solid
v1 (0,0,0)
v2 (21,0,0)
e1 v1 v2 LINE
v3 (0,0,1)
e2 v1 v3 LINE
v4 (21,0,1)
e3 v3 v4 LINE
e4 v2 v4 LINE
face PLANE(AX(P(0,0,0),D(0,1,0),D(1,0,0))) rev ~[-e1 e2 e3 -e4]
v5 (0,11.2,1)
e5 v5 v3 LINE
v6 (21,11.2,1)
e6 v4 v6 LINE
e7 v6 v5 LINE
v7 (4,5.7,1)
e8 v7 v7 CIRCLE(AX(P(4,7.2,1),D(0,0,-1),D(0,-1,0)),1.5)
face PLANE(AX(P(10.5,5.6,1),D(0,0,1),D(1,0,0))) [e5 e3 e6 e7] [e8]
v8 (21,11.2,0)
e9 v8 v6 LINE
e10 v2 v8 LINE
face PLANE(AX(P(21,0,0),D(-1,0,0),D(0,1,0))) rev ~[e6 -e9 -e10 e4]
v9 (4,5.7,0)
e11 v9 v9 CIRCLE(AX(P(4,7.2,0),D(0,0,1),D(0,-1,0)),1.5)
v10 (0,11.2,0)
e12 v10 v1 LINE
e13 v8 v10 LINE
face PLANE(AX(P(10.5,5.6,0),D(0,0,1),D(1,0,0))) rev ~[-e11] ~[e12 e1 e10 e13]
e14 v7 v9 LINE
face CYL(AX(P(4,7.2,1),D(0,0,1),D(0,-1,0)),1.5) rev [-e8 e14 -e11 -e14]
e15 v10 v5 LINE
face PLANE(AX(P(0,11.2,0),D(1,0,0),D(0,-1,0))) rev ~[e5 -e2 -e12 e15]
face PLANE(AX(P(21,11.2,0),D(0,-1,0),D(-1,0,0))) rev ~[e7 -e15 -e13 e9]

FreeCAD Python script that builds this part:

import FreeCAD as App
import Part
import Sketcher

V = App.Vector
Q = App.Units.Quantity


def add_polygon(sketch, points):
    """Adds a closed chain of lines whose ends are joined by coincident constraints."""
    first, n = sketch.GeometryCount, len(points)
    for a, b in zip(points, points[1:] + points[:1]):
        sketch.addGeometry(Part.LineSegment(App.Vector(*a, 0), App.Vector(*b, 0)), False)
    for i in range(n):
        sketch.addConstraint(Sketcher.Constraint("Coincident", first + i, 2, first + (i + 1) % n, 1))

doc = App.newDocument("Part")
body = doc.addObject("PartDesign::Body", "Body")

# Sketch on XY plane
sketch1 = doc.addObject("Sketcher::SketchObject", "Sketch")
body.addObject(sketch1)
sketch1.AttachmentSupport = (doc.XY_Plane, [""])
sketch1.MapMode = "FlatFace"
add_polygon(sketch1, [(21, 0), (21, 11), (0, 11), (0, 0)])  # lines 0-3
sketch1.addConstraint([
    Sketcher.Constraint("Vertical", 0),
    Sketcher.Constraint("Horizontal", 1),
    Sketcher.Constraint("Vertical", 2),
    Sketcher.Constraint("Horizontal", 3),
    Sketcher.Constraint("Coincident", 2, 2, -1, 1),
    Sketcher.Constraint("DistanceX", 1, 2, 1, 1, Q("21 mm")),
    Sketcher.Constraint("DistanceY", 0, 1, 0, 2, Q("11.2 mm")),
])
pad1 = doc.addObject("PartDesign::Pad", "Pad")
body.addObject(pad1)
pad1.Profile = sketch1
pad1.Length = 1

# Sketch on XY plane
sketch2 = doc.addObject("Sketcher::SketchObject", "Sketch001")
body.addObject(sketch2)
sketch2.AttachmentSupport = (doc.XY_Plane, [""])
sketch2.MapMode = "FlatFace"
sketch2.AttachmentOffset = App.Placement(V(0, 0, 1), App.Rotation())
sketch2.addGeometry(Part.Circle(V(4, 7.2, 0), V(0, 0, 1), 1.5), False)
sketch2.addConstraint([
    Sketcher.Constraint("Diameter", 0, Q("3 mm")),
    Sketcher.Constraint("DistanceX", -1, 1, 0, 3, Q("4 mm")),
    Sketcher.Constraint("DistanceY", -1, 1, 0, 3, Q("7.2 mm")),
])
doc.recompute()
hole = doc.addObject("PartDesign::Hole", "Hole")
body.addObject(hole)
hole.Profile = sketch2
hole.ThreadType = "None"
hole.Diameter = 3
hole.DepthType = "ThroughAll"

doc.recompute()
